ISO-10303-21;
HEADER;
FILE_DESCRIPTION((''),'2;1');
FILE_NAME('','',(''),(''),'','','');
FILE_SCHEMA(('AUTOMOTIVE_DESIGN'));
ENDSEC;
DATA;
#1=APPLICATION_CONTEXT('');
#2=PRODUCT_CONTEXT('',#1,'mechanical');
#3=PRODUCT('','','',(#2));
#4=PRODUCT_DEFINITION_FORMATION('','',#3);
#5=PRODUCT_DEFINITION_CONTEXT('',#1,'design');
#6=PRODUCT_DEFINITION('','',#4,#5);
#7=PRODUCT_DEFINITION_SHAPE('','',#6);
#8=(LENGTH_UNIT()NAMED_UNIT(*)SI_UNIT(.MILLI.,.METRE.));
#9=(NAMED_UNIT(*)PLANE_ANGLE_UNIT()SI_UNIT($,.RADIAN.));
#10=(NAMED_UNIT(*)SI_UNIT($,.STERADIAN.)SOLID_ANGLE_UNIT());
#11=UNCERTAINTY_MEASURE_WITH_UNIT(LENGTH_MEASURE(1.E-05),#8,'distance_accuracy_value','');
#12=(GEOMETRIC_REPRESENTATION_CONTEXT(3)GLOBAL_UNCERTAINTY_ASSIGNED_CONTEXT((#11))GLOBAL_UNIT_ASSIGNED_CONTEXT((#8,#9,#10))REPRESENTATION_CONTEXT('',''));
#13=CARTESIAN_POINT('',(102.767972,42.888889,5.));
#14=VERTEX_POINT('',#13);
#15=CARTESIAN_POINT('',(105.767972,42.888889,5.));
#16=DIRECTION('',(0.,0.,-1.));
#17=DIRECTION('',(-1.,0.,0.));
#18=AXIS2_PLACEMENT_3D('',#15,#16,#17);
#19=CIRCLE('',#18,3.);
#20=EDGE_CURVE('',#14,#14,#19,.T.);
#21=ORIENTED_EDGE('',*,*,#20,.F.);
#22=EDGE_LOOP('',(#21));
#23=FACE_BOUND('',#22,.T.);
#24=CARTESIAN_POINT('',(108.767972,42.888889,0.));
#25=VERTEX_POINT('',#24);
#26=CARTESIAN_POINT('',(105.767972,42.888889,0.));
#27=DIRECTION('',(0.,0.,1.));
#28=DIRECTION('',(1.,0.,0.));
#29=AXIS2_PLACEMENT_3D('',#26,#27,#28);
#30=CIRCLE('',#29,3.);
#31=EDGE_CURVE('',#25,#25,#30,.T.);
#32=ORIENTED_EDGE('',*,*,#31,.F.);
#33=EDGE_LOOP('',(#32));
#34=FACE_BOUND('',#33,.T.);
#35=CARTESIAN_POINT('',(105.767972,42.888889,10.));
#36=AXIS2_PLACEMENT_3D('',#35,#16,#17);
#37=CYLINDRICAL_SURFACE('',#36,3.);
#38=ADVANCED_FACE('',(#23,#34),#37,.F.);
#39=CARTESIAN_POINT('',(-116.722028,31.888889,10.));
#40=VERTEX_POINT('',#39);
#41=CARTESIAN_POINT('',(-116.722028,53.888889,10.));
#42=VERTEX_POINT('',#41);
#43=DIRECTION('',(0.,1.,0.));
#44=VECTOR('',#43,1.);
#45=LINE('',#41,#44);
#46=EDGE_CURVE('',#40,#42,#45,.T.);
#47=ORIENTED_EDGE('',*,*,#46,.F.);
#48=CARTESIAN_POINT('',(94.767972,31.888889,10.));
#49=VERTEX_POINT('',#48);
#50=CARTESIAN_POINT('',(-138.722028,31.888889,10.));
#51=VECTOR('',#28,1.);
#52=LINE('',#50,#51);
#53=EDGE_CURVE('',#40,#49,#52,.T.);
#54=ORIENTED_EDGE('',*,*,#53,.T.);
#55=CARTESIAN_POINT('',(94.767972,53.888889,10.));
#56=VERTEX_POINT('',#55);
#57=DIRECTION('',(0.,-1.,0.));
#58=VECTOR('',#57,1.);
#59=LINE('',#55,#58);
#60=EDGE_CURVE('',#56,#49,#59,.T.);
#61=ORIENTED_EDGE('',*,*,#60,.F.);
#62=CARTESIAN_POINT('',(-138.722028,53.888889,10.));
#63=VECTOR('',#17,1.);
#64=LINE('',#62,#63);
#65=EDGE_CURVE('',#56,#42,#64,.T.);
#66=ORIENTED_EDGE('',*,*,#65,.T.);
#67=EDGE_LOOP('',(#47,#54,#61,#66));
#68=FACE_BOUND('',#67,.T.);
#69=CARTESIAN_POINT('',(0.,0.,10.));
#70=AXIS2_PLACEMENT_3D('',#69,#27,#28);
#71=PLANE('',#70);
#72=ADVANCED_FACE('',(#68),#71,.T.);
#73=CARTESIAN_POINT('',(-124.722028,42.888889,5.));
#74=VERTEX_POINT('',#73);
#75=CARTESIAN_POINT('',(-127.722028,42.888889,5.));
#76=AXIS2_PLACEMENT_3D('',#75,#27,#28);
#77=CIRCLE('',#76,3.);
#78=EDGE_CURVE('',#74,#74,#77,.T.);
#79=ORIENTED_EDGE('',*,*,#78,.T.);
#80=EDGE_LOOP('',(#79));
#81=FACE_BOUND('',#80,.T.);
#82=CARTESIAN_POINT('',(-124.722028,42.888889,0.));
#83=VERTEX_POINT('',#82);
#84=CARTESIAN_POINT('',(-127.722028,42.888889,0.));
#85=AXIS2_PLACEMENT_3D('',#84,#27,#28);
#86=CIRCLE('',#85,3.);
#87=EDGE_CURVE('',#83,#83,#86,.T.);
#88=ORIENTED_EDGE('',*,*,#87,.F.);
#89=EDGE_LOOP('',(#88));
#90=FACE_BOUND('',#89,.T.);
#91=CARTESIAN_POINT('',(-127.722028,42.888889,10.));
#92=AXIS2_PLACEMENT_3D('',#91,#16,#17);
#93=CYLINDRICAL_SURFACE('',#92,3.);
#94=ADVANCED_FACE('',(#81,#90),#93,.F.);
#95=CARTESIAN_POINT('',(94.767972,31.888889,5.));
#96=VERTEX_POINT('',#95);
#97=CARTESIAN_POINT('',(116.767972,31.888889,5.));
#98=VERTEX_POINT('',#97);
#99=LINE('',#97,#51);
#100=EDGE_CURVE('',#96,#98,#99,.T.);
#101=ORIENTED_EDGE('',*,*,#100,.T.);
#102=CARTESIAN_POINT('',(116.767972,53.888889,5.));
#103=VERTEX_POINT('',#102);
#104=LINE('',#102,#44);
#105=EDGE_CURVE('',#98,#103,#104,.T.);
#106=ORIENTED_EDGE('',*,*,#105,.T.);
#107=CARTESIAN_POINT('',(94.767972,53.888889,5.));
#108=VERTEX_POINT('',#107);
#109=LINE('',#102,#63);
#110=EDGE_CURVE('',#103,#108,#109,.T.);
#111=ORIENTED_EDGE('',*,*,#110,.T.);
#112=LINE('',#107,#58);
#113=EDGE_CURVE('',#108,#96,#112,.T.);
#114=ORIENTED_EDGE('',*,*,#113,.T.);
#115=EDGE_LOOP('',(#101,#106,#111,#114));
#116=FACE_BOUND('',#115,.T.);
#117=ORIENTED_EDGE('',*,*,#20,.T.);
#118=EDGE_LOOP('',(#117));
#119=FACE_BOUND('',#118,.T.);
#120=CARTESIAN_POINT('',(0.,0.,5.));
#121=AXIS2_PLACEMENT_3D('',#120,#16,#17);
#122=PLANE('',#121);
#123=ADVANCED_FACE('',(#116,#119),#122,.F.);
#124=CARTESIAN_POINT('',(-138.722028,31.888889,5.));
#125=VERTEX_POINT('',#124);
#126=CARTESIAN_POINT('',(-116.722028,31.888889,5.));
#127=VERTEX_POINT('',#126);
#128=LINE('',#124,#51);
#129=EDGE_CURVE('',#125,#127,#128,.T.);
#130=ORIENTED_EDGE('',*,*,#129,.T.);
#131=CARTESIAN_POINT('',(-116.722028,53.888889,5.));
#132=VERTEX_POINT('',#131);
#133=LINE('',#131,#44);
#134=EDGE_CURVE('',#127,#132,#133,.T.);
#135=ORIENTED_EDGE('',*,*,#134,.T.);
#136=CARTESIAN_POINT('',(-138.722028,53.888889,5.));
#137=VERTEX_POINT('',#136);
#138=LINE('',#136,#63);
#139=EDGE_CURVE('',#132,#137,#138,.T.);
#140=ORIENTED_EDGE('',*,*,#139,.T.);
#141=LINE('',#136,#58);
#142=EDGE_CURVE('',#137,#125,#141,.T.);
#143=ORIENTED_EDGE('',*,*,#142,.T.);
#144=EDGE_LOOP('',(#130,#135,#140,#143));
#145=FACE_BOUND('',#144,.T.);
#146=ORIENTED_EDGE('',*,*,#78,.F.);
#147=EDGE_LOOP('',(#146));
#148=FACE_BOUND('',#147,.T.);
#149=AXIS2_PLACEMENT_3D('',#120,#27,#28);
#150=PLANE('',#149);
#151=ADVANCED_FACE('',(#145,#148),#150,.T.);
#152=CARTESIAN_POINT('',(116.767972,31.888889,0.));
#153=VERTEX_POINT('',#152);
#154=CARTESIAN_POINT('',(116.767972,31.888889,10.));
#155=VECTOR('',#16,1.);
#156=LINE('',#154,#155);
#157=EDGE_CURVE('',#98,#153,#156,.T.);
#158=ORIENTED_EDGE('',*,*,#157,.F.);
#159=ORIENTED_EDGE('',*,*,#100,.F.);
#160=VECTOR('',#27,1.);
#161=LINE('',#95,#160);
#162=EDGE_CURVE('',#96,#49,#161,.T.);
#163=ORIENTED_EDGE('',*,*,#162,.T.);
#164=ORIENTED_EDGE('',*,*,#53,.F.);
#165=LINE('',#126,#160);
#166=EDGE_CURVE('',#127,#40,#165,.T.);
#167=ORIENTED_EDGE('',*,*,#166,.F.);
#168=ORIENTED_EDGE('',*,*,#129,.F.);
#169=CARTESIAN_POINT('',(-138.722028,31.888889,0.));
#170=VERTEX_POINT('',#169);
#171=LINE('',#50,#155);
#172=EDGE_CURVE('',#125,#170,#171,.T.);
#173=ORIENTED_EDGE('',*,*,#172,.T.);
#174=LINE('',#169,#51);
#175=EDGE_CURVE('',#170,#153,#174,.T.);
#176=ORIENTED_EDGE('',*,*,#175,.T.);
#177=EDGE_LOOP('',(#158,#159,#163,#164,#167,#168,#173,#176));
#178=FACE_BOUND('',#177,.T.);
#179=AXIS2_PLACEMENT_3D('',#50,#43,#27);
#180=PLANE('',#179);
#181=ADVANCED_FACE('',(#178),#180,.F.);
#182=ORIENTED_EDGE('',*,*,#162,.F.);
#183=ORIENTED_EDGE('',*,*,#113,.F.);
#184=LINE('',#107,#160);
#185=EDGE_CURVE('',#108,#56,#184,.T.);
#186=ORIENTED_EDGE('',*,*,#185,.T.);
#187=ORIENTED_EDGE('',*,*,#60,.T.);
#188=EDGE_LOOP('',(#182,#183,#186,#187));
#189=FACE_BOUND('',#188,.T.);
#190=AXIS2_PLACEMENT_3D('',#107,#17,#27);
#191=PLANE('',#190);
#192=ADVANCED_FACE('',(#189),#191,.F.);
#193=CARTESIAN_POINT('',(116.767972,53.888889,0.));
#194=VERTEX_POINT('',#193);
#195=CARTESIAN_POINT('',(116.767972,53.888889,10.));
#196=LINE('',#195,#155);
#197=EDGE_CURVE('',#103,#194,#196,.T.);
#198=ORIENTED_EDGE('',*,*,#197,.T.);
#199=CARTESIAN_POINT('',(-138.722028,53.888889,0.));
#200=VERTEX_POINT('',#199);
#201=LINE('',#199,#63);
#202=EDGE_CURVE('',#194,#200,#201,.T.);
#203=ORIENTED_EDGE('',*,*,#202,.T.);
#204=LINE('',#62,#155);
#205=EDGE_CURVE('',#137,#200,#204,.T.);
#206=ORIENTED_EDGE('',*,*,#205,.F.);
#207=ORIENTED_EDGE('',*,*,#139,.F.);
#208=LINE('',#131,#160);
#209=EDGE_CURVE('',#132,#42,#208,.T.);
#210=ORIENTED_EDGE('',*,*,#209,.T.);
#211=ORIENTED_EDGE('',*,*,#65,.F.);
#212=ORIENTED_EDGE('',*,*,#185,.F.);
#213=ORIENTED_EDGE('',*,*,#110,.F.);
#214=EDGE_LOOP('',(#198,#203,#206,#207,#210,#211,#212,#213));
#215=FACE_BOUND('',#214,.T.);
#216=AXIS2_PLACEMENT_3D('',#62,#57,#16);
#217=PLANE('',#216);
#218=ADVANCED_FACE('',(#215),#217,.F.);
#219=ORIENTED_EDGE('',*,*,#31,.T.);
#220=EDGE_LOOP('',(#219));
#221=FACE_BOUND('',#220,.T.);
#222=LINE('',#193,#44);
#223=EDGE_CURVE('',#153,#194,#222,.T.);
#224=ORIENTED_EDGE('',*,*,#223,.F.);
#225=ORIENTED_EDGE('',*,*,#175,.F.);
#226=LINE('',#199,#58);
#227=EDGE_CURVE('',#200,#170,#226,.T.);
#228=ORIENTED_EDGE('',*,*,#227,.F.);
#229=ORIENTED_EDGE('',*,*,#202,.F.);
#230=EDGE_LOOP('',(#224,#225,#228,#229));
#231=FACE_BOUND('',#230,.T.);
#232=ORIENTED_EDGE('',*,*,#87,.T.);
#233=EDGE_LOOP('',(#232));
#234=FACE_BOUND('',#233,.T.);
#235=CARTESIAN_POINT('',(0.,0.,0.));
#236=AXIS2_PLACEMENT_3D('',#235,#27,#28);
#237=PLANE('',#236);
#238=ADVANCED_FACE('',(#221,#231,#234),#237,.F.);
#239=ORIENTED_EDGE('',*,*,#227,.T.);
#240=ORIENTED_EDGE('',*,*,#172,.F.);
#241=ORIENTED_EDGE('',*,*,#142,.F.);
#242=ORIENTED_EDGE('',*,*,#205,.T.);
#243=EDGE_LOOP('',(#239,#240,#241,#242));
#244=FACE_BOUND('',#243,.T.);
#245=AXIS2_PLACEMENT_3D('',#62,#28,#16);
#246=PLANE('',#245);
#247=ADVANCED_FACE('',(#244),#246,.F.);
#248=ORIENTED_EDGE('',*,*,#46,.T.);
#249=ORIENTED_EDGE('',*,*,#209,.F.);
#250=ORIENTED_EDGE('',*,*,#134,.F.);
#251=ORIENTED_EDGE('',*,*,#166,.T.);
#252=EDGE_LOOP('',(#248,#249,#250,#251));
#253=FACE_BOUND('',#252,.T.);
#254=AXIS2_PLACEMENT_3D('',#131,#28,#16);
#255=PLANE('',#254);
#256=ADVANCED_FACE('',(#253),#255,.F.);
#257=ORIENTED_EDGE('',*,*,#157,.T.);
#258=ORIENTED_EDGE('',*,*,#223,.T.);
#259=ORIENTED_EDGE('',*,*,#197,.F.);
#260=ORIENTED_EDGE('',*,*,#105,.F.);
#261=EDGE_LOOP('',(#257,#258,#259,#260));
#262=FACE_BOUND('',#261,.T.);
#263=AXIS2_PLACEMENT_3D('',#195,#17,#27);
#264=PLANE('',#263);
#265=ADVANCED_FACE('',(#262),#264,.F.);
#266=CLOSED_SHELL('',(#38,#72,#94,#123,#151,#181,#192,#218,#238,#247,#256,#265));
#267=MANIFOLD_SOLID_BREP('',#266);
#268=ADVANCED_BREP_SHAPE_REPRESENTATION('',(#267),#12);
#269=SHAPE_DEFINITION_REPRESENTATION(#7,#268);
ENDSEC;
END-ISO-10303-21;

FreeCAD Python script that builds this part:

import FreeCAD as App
import Part
import Sketcher

V = App.Vector
Q = App.Units.Quantity


def add_polygon(sketch, points):
    """Adds a closed chain of lines whose ends are joined by coincident constraints."""
    first, n = sketch.GeometryCount, len(points)
    for a, b in zip(points, points[1:] + points[:1]):
        sketch.addGeometry(Part.LineSegment(App.Vector(*a, 0), App.Vector(*b, 0)), False)
    for i in range(n):
        sketch.addConstraint(Sketcher.Constraint("Coincident", first + i, 2, first + (i + 1) % n, 1))

doc = App.newDocument("Part")
body = doc.addObject("PartDesign::Body", "Body")

sketch1 = body.newObject("Sketcher::SketchObject", "Sketch")
sketch1.AttachmentSupport = (doc.getObject("XY_Plane"), [""])
sketch1.MapMode = "FlatFace"
add_polygon(sketch1, [(-138.7, 53.9), (-138.7, 31.9), (116.8, 31.9), (116.8, 53.9)])
sketch1.addGeometry(Part.Circle(V(-127.7, 42.9, 0), V(0, 0, 1), 3), False)
sketch1.addGeometry(Part.Circle(V(105.8, 42.9, 0), V(0, 0, 1), 3), False)
sketch1.addConstraint(Sketcher.Constraint("Vertical", 0))
sketch1.addConstraint(Sketcher.Constraint("Horizontal", 1))
sketch1.addConstraint(Sketcher.Constraint("Vertical", 2))
sketch1.addConstraint(Sketcher.Constraint("Horizontal", 3))
sketch1.addConstraint(Sketcher.Constraint("Equal", 4, 5))
sketch1.addConstraint(Sketcher.Constraint("Horizontal", 4, 3, 5, 3))
sketch1.addConstraint(Sketcher.Constraint("Diameter", 4, Q("6 mm")))
sketch1.addConstraint(Sketcher.Constraint("DistanceY", 0, 2, 0, 1, Q("22 mm")))
sketch1.addConstraint(Sketcher.Constraint("DistanceX", 0, 2, 4, 3, Q("11 mm")))
sketch1.addConstraint(Sketcher.Constraint("DistanceY", 0, 2, 4, 3, Q("11 mm")))
sketch1.addConstraint(Sketcher.Constraint("DistanceX", 5, 3, 1, 2, Q("11 mm")))
sketch1.addConstraint(Sketcher.Constraint("DistanceX", 1, 1, 1, 2, Q("255.49 mm")))
sketch1.addConstraint(Sketcher.Constraint("DistanceX", 4, 3, -1, 1, Q("127.722028 mm")))
sketch1.addConstraint(Sketcher.Constraint("DistanceY", -1, 1, 4, 3, Q("42.888889 mm")))
pad1 = body.newObject("PartDesign::Pad", "Pad")
pad1.Profile = sketch1
pad1.Length = 10

sketch2 = body.newObject("Sketcher::SketchObject", "Sketch001")
sketch2.AttachmentSupport = (doc.getObject("XY_Plane"), [""])
sketch2.MapMode = "FlatFace"
sketch2.AttachmentOffset = App.Placement(V(0, 0, 10), App.Rotation())
add_polygon(sketch2, [(-139, 54), (-139, 32), (-117, 32), (-117, 54)])
add_polygon(sketch2, [(95, 54), (95, 32), (117, 32), (117, 54)])
sketch2.addConstraint(Sketcher.Constraint("Vertical", 0))
sketch2.addConstraint(Sketcher.Constraint("Horizontal", 1))
sketch2.addConstraint(Sketcher.Constraint("Vertical", 2))
sketch2.addConstraint(Sketcher.Constraint("Horizontal", 3))
sketch2.addConstraint(Sketcher.Constraint("Vertical", 4))
sketch2.addConstraint(Sketcher.Constraint("Horizontal", 5))
sketch2.addConstraint(Sketcher.Constraint("Vertical", 6))
sketch2.addConstraint(Sketcher.Constraint("Horizontal", 7))
sketch2.addConstraint(Sketcher.Constraint("Horizontal", 1, 2, 4, 2))
sketch2.addConstraint(Sketcher.Constraint("Horizontal", 3, 2, 6, 2))
sketch2.addConstraint(Sketcher.Constraint("Equal", 3, 5))
sketch2.addConstraint(Sketcher.Constraint("Equal", 7, 0))
sketch2.addConstraint(Sketcher.Constraint("DistanceX", 1, 1, 1, 2, Q("22 mm")))
sketch2.addConstraint(Sketcher.Constraint("DistanceX", 1, 2, 4, 2, Q("211.49 mm")))
sketch2.addConstraint(Sketcher.Constraint("DistanceX", 0, 2, -1, 1, Q("138.722028 mm")))
sketch2.addConstraint(Sketcher.Constraint("DistanceY", -1, 1, 0, 2, Q("31.888889 mm")))
pocket1 = body.newObject("PartDesign::Pocket", "Pocket")
pocket1.Profile = sketch2
pocket1.Length = 5

doc.recompute()
